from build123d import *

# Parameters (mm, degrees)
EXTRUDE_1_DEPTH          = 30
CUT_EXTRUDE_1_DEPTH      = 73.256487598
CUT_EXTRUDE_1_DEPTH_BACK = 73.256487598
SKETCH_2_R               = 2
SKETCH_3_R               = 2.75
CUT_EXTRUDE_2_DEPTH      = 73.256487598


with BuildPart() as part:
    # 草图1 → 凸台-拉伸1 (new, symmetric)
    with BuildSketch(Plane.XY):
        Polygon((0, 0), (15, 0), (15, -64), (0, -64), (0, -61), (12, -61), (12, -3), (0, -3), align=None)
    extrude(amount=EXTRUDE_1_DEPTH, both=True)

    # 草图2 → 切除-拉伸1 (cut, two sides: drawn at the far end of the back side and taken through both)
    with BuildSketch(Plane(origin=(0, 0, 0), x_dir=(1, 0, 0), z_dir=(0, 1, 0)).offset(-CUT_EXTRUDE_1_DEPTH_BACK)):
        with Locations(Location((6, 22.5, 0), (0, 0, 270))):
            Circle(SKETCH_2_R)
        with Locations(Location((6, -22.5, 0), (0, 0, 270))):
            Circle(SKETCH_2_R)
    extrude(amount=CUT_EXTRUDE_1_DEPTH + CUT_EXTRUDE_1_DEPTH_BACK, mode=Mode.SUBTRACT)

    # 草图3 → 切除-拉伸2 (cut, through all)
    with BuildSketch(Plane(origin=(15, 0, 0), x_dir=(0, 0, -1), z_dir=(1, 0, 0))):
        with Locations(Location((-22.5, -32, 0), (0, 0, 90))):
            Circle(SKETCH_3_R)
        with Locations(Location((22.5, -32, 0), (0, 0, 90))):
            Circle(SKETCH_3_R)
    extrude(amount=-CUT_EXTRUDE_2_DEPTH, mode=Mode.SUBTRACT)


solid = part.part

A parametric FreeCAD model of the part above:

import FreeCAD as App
import Part
import Sketcher

V = App.Vector
Q = App.Units.Quantity

doc = App.newDocument("Part")
body = doc.addObject("PartDesign::Body", "Body")

sketch1 = doc.addObject("Sketcher::SketchObject", "Sketch")
body.addObject(sketch1)
sketch1.AttachmentSupport = (doc.XY_Plane, [""])
sketch1.MapMode = "FlatFace"
sketch1.addGeometry([
    Part.LineSegment(V(15, 0, 0), V(0, 0, 0)),
    Part.LineSegment(V(0, 0, 0), V(0, -3, 0)),
    Part.LineSegment(V(0, -3, 0), V(12, -3, 0)),
    Part.LineSegment(V(12, -3, 0), V(12, -61, 0)),
    Part.LineSegment(V(12, -61, 0), V(0, -61, 0)),
    Part.LineSegment(V(0, -61, 0), V(0, -64, 0)),
    Part.LineSegment(V(0, -64, 0), V(15, -64, 0)),
    Part.LineSegment(V(15, -64, 0), V(15, 0, 0)),
], False)
sketch1.addConstraint([
    Sketcher.Constraint("Coincident", 0, 2, 1, 1),
    Sketcher.Constraint("Coincident", 1, 2, 2, 1),
    Sketcher.Constraint("Coincident", 2, 2, 3, 1),
    Sketcher.Constraint("Coincident", 3, 2, 4, 1),
    Sketcher.Constraint("Coincident", 4, 2, 5, 1),
    Sketcher.Constraint("Coincident", 5, 2, 6, 1),
    Sketcher.Constraint("Coincident", 6, 2, 7, 1),
    Sketcher.Constraint("Coincident", 7, 2, 0, 1),
    Sketcher.Constraint("Horizontal", 0),
    Sketcher.Constraint("Vertical", 1),
    Sketcher.Constraint("Horizontal", 2),
    Sketcher.Constraint("Vertical", 3),
    Sketcher.Constraint("Horizontal", 4),
    Sketcher.Constraint("Vertical", 5),
    Sketcher.Constraint("Horizontal", 6),
    Sketcher.Constraint("Vertical", 7),
    Sketcher.Constraint("Coincident", 0, 2, -1, 1),
    Sketcher.Constraint("PointOnObject", 4, 2, -2),
    Sketcher.Constraint("Equal", 1, 5),
    Sketcher.Constraint("DistanceX", 0, 2, 0, 1, Q("15 mm")),
    Sketcher.Constraint("DistanceX", 2, 1, 2, 2, Q("12 mm")),
    Sketcher.Constraint("DistanceY", 1, 2, 1, 1, Q("3 mm")),
    Sketcher.Constraint("DistanceY", 3, 2, 3, 1, Q("58 mm")),
])
pad1 = doc.addObject("PartDesign::Pad", "Pad")
body.addObject(pad1)
pad1.Profile = sketch1
pad1.Length = 60
pad1.Midplane = True

sketch2 = doc.addObject("Sketcher::SketchObject", "Sketch001")
body.addObject(sketch2)
sketch2.AttachmentSupport = (doc.XZ_Plane, [""])
sketch2.MapMode = "FlatFace"
sketch2.addGeometry([
    Part.Circle(V(6, -22.5, 0), V(0, 0, 1), 2),
    Part.Circle(V(6, 22.5, 0), V(0, 0, 1), 2),
], False)
sketch2.addConstraint([
    Sketcher.Constraint("Equal", 0, 1),
    Sketcher.Constraint("Symmetric", 0, 3, 1, 3, -1),
    Sketcher.Constraint("Diameter", 0, Q("4 mm")),
    Sketcher.Constraint("DistanceX", -1, 1, 0, 3, Q("6 mm")),
    Sketcher.Constraint("DistanceY", 0, 3, 1, 3, Q("45 mm")),
])
pocket1 = doc.addObject("PartDesign::Pocket", "Pocket")
body.addObject(pocket1)
pocket1.Profile = sketch2
pocket1.Type = "ThroughAll"
pocket1.Midplane = True

sketch3 = doc.addObject("Sketcher::SketchObject", "Sketch002")
body.addObject(sketch3)
sketch3.AttachmentSupport = (doc.YZ_Plane, [""])
sketch3.MapMode = "FlatFace"
sketch3.AttachmentOffset = App.Placement(V(0, 0, 15), App.Rotation())
sketch3.addGeometry([
    Part.Circle(V(-32, 22.5, 0), V(0, 0, 1), 2.8),
    Part.Circle(V(-32, -22.5, 0), V(0, 0, 1), 2.8),
], False)
sketch3.addConstraint([
    Sketcher.Constraint("Equal", 0, 1),
    Sketcher.Constraint("Symmetric", 0, 3, 1, 3, -1),
    Sketcher.Constraint("Diameter", 0, Q("5.5 mm")),
    Sketcher.Constraint("DistanceX", 0, 3, -1, 1, Q("32 mm")),
    Sketcher.Constraint("DistanceY", 1, 3, 0, 3, Q("45 mm")),
])
pocket2 = doc.addObject("PartDesign::Pocket", "Pocket001")
body.addObject(pocket2)
pocket2.Profile = sketch3
pocket2.Type = "ThroughAll"

doc.recompute()
